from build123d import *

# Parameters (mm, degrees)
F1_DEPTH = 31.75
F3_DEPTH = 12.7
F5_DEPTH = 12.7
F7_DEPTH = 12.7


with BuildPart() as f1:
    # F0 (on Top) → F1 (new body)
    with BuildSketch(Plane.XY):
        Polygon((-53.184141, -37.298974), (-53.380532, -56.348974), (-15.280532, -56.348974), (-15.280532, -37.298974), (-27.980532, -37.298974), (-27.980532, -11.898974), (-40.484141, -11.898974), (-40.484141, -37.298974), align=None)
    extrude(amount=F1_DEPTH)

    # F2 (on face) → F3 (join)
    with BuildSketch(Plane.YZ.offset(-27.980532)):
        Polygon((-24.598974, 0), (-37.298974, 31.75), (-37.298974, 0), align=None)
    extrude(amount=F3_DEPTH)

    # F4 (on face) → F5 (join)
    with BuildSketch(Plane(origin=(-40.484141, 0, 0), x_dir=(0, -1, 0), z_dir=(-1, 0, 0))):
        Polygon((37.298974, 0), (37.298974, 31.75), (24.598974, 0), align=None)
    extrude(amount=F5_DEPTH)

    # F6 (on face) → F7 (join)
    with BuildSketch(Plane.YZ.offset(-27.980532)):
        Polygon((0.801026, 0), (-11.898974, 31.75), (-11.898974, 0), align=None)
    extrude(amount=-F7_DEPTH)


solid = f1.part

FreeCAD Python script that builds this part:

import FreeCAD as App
import Part
import Sketcher

V = App.Vector
Q = App.Units.Quantity

doc = App.newDocument("Part")
params = doc.addObject("Spreadsheet::Sheet", "Params")
for row, (alias, value) in enumerate([
    ("sketch1_height", "1 in"),
    ("sketch1_width", "1.5 in"),
    ("sketch1_width2", "0.5 in"),
    ("sketch1_height2", "0.75 in"),
    ("pad1_length", "1.25 in"),
    ("sketch2_width", "0.5 in"),
    ("sketch2_height", "1.25 in"),
    ("pad2_length", "0.5 in"),
    ("sketch3_width", "0.5 in"),
    ("sketch3_height", "1.25 in"),
    ("pad3_length", "0.5 in"),
    ("sketch4_width", "0.5 in"),
    ("sketch4_height", "1.25 in"),
    ("pad4_length", "0.5 in"),
], start=1):
    params.set(f"A{row}", alias)
    params.set(f"B{row}", "=" + value)
    params.setAlias(f"B{row}", alias)

body = doc.addObject("PartDesign::Body", "Body")

sketch1 = doc.addObject("Sketcher::SketchObject", "Sketch")
body.addObject(sketch1)
sketch1.AttachmentSupport = (doc.XY_Plane, [""])
sketch1.MapMode = "FlatFace"
sketch1.addGeometry(Part.LineSegment(V(-53, -37, 0), V(-53, -56, 0)), False)
sketch1.addGeometry(Part.LineSegment(V(-53, -56, 0), V(-15, -56, 0)), False)
sketch1.addGeometry(Part.LineSegment(V(-15, -56, 0), V(-15, -37, 0)), False)
sketch1.addGeometry(Part.LineSegment(V(-15, -37, 0), V(-28, -37, 0)), False)
sketch1.addGeometry(Part.LineSegment(V(-28, -37, 0), V(-28, -12, 0)), False)
sketch1.addGeometry(Part.LineSegment(V(-28, -12, 0), V(-40, -12, 0)), False)
sketch1.addGeometry(Part.LineSegment(V(-40, -12, 0), V(-40, -37, 0)), False)
sketch1.addGeometry(Part.LineSegment(V(-40, -37, 0), V(-53, -37, 0)), False)
sketch1.addConstraint(Sketcher.Constraint("Coincident", 0, 2, 1, 1))
sketch1.addConstraint(Sketcher.Constraint("Coincident", 1, 2, 2, 1))
sketch1.addConstraint(Sketcher.Constraint("Coincident", 2, 2, 3, 1))
sketch1.addConstraint(Sketcher.Constraint("Coincident", 3, 2, 4, 1))
sketch1.addConstraint(Sketcher.Constraint("Coincident", 4, 2, 5, 1))
sketch1.addConstraint(Sketcher.Constraint("Coincident", 5, 2, 6, 1))
sketch1.addConstraint(Sketcher.Constraint("Coincident", 6, 2, 7, 1))
sketch1.addConstraint(Sketcher.Constraint("Coincident", 7, 2, 0, 1))
sketch1.addConstraint(Sketcher.Constraint("Horizontal", 1))
sketch1.addConstraint(Sketcher.Constraint("Vertical", 2))
sketch1.addConstraint(Sketcher.Constraint("Horizontal", 3))
sketch1.addConstraint(Sketcher.Constraint("Vertical", 4))
sketch1.addConstraint(Sketcher.Constraint("Horizontal", 5))
sketch1.addConstraint(Sketcher.Constraint("Vertical", 6))
sketch1.addConstraint(Sketcher.Constraint("Horizontal", 7))
sketch1.addConstraint(Sketcher.Constraint("Horizontal", 3, 2, 6, 2))
sketch1.addConstraint(Sketcher.Constraint("Equal", 3, 7))
sketch1.addConstraint(Sketcher.Constraint("DistanceY", 4, 1, 4, 2, Q("1 in")))
sketch1.addConstraint(Sketcher.Constraint("DistanceX", 1, 1, 1, 2, Q("1.5 in")))
sketch1.addConstraint(Sketcher.Constraint("DistanceX", 3, 2, 3, 1, Q("0.5 in")))
sketch1.addConstraint(Sketcher.Constraint("DistanceY", 2, 1, 2, 2, Q("0.75 in")))
sketch1.addConstraint(Sketcher.Constraint("DistanceX", 5, 2, 5, 1, Q("12.503609 mm")))
sketch1.addConstraint(Sketcher.Constraint("DistanceX", 1, 2, -1, 1, Q("15.280532 mm")))
sketch1.addConstraint(Sketcher.Constraint("DistanceY", 0, 2, -1, 1, Q("56.348974 mm")))
sketch1.setExpression("Constraints[17]", "Params.sketch1_height")
sketch1.setExpression("Constraints[18]", "Params.sketch1_width")
sketch1.setExpression("Constraints[19]", "Params.sketch1_width2")
sketch1.setExpression("Constraints[20]", "Params.sketch1_height2")
pad1 = doc.addObject("PartDesign::Pad", "Pad")
body.addObject(pad1)
pad1.Profile = sketch1
pad1.setExpression("Length", "Params.pad1_length")

sketch2 = doc.addObject("Sketcher::SketchObject", "Sketch001")
body.addObject(sketch2)
sketch2.AttachmentSupport = (doc.YZ_Plane, [""])
sketch2.MapMode = "FlatFace"
sketch2.AttachmentOffset = App.Placement(V(0, 0, -27.980532), App.Rotation())
sketch2.addGeometry(Part.LineSegment(V(-25, 0, 0), V(-37, 32, 0)), False)
sketch2.addGeometry(Part.LineSegment(V(-37, 32, 0), V(-37, 0, 0)), False)
sketch2.addGeometry(Part.LineSegment(V(-37, 0, 0), V(-25, 0, 0)), False)
sketch2.addConstraint(Sketcher.Constraint("Coincident", 0, 2, 1, 1))
sketch2.addConstraint(Sketcher.Constraint("Coincident", 1, 2, 2, 1))
sketch2.addConstraint(Sketcher.Constraint("Coincident", 2, 2, 0, 1))
sketch2.addConstraint(Sketcher.Constraint("Vertical", 1))
sketch2.addConstraint(Sketcher.Constraint("Horizontal", 2))
sketch2.addConstraint(Sketcher.Constraint("PointOnObject", 1, 2, -1))
sketch2.addConstraint(Sketcher.Constraint("DistanceX", 2, 1, 2, 2, Q("0.5 in")))
sketch2.addConstraint(Sketcher.Constraint("DistanceY", 1, 2, 1, 1, Q("1.25 in")))
sketch2.addConstraint(Sketcher.Constraint("DistanceX", 0, 2, -1, 1, Q("37.298974 mm")))
sketch2.setExpression("Constraints[6]", "Params.sketch2_width")
sketch2.setExpression("Constraints[7]", "Params.sketch2_height")
pad2 = doc.addObject("PartDesign::Pad", "Pad001")
body.addObject(pad2)
pad2.Profile = sketch2
pad2.setExpression("Length", "Params.pad2_length")

sketch3 = doc.addObject("Sketcher::SketchObject", "Sketch002")
body.addObject(sketch3)
sketch3.AttachmentSupport = (doc.YZ_Plane, [""])
sketch3.MapMode = "FlatFace"
sketch3.AttachmentOffset = App.Placement(V(0, 0, -40.484141), App.Rotation())
sketch3.addGeometry(Part.LineSegment(V(-37, 0, 0), V(-37, 32, 0)), False)
sketch3.addGeometry(Part.LineSegment(V(-37, 32, 0), V(-25, 0, 0)), False)
sketch3.addGeometry(Part.LineSegment(V(-25, 0, 0), V(-37, 0, 0)), False)
sketch3.addConstraint(Sketcher.Constraint("Coincident", 0, 2, 1, 1))
sketch3.addConstraint(Sketcher.Constraint("Coincident", 1, 2, 2, 1))
sketch3.addConstraint(Sketcher.Constraint("Coincident", 2, 2, 0, 1))
sketch3.addConstraint(Sketcher.Constraint("Vertical", 0))
sketch3.addConstraint(Sketcher.Constraint("Horizontal", 2))
sketch3.addConstraint(Sketcher.Constraint("PointOnObject", 1, 2, -1))
sketch3.addConstraint(Sketcher.Constraint("DistanceX", 2, 2, 2, 1, Q("0.5 in")))
sketch3.addConstraint(Sketcher.Constraint("DistanceY", 0, 1, 0, 2, Q("1.25 in")))
sketch3.addConstraint(Sketcher.Constraint("DistanceX", 0, 2, -1, 1, Q("37.298974 mm")))
sketch3.setExpression("Constraints[6]", "Params.sketch3_width")
sketch3.setExpression("Constraints[7]", "Params.sketch3_height")
pad3 = doc.addObject("PartDesign::Pad", "Pad002")
body.addObject(pad3)
pad3.Profile = sketch3
pad3.setExpression("Length", "Params.pad3_length")
pad3.Reversed = True

sketch4 = doc.addObject("Sketcher::SketchObject", "Sketch003")
body.addObject(sketch4)
sketch4.AttachmentSupport = (doc.YZ_Plane, [""])
sketch4.MapMode = "FlatFace"
sketch4.AttachmentOffset = App.Placement(V(0, 0, -27.980532), App.Rotation())
sketch4.addGeometry(Part.LineSegment(V(1, 0, 0), V(-12, 32, 0)), False)
sketch4.addGeometry(Part.LineSegment(V(-12, 32, 0), V(-12, 0, 0)), False)
sketch4.addGeometry(Part.LineSegment(V(-12, 0, 0), V(1, 0, 0)), False)
sketch4.addConstraint(Sketcher.Constraint("Coincident", 0, 2, 1, 1))
sketch4.addConstraint(Sketcher.Constraint("Coincident", 1, 2, 2, 1))
sketch4.addConstraint(Sketcher.Constraint("Coincident", 2, 2, 0, 1))
sketch4.addConstraint(Sketcher.Constraint("Vertical", 1))
sketch4.addConstraint(Sketcher.Constraint("Horizontal", 2))
sketch4.addConstraint(Sketcher.Constraint("PointOnObject", 1, 2, -1))
sketch4.addConstraint(Sketcher.Constraint("DistanceX", 2, 1, 2, 2, Q("0.5 in")))
sketch4.addConstraint(Sketcher.Constraint("DistanceY", 1, 2, 1, 1, Q("1.25 in")))
sketch4.addConstraint(Sketcher.Constraint("DistanceX", 0, 2, -1, 1, Q("11.898974 mm")))
sketch4.setExpression("Constraints[6]", "Params.sketch4_width")
sketch4.setExpression("Constraints[7]", "Params.sketch4_height")
pad4 = doc.addObject("PartDesign::Pad", "Pad003")
body.addObject(pad4)
pad4.Profile = sketch4
pad4.setExpression("Length", "Params.pad4_length")
pad4.Reversed = True

doc.recompute()
